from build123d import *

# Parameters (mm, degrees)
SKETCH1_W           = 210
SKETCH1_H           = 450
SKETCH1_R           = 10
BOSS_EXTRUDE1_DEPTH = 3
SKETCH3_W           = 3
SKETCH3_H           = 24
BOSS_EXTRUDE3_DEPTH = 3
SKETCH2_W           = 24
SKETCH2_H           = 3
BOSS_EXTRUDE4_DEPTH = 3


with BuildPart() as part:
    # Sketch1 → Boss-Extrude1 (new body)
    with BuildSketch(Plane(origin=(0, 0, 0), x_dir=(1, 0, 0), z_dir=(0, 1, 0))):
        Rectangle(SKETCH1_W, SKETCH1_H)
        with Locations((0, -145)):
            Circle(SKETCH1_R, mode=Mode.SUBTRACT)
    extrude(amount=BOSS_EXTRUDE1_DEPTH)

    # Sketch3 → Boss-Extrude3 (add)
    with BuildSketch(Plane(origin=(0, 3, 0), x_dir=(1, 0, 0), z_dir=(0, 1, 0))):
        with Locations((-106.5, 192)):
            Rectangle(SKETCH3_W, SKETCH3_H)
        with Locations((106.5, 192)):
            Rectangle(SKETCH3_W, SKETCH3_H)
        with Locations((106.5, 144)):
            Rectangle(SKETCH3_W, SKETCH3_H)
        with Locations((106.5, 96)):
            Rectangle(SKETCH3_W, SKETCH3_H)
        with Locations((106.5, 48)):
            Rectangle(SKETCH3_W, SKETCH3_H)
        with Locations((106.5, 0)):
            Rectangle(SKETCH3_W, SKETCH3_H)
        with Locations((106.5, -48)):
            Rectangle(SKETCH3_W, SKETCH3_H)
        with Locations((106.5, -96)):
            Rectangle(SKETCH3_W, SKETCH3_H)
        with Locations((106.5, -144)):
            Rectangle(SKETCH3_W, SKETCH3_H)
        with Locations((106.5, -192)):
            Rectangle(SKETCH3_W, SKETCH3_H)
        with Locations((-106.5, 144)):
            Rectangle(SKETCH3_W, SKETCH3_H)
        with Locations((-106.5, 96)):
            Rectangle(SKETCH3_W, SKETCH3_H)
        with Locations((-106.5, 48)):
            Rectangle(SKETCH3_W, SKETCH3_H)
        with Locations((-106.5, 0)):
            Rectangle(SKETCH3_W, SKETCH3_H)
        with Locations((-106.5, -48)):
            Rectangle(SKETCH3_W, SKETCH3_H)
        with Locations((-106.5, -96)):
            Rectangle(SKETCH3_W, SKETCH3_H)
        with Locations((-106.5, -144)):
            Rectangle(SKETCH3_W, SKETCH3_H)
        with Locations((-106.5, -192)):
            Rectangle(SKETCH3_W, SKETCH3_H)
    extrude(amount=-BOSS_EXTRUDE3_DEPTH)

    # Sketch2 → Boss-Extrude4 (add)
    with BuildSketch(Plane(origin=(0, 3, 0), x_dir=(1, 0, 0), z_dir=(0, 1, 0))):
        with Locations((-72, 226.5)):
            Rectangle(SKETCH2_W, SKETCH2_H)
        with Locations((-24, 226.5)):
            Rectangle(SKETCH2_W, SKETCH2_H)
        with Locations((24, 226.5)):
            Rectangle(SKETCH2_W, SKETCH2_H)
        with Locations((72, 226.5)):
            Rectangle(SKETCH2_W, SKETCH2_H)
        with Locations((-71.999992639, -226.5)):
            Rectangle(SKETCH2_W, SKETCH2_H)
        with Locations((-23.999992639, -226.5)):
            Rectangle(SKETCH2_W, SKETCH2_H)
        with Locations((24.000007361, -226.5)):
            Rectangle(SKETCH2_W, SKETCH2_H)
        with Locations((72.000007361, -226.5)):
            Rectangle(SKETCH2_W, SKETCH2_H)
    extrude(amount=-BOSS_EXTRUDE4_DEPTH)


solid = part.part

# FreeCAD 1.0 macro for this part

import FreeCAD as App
import Part
import Sketcher
Q = App.Units.Quantity

doc = App.newDocument("Part")
params = doc.addObject("Spreadsheet::Sheet", "Params")
for row, (alias, value) in enumerate([
    ("sketch1_diameter", "20 mm"),
    ("sketch1_width", "210 mm"),
    ("sketch1_height", "450 mm"),
    ("pad1_length", "3 mm"),
    ("sketch2_width", "3 mm"),
    ("sketch2_height", "24 mm"),
    ("pad2_length", "3 mm"),
    ("sketch3_width", "24 mm"),
    ("sketch3_height", "3 mm"),
    ("pad3_length", "3 mm"),
], start=1):
    params.set(f"A{row}", alias)
    params.set(f"B{row}", "=" + value)
    params.setAlias(f"B{row}", alias)

body = doc.addObject("PartDesign::Body", "Body")

# Sketch on XZ plane
sketch1 = doc.addObject("Sketcher::SketchObject", "Sketch")
body.addObject(sketch1)
sketch1.AttachmentSupport = (doc.XZ_Plane, [""])
sketch1.MapMode = "FlatFace"
sketch1.addGeometry([
    Part.LineSegment(App.Vector(-105, -225, 0), App.Vector(-105, 225, 0)),  # 0
    Part.LineSegment(App.Vector(-105, 225, 0), App.Vector(105, 225, 0)),  # 1
    Part.LineSegment(App.Vector(105, 225, 0), App.Vector(105, -225, 0)),  # 2
    Part.LineSegment(App.Vector(105, -225, 0), App.Vector(-105, -225, 0)),  # 3
    Part.Circle(App.Vector(0, 145, 0), App.Vector(0, 0, 1), 10),  # 4
], False)
sketch1.addConstraint([
    Sketcher.Constraint("Coincident", 0, 2, 1, 1),
    Sketcher.Constraint("Coincident", 1, 2, 2, 1),
    Sketcher.Constraint("Coincident", 2, 2, 3, 1),
    Sketcher.Constraint("Coincident", 3, 2, 0, 1),
    Sketcher.Constraint("Vertical", 0),
    Sketcher.Constraint("Horizontal", 1),
    Sketcher.Constraint("Vertical", 2),
    Sketcher.Constraint("Horizontal", 3),
    Sketcher.Constraint("Symmetric", 0, 2, 2, 2, -1, 1),
    Sketcher.Constraint("PointOnObject", 4, 3, -2),
    Sketcher.Constraint("Diameter", 4, Q("20 mm")),
    Sketcher.Constraint("DistanceX", 1, 1, 1, 2, Q("210 mm")),
    Sketcher.Constraint("DistanceY", 0, 1, 0, 2, Q("450 mm")),
    Sketcher.Constraint("DistanceY", -1, 1, 4, 3, Q("145 mm")),
])
sketch1.setExpression("Constraints[10]", "Params.sketch1_diameter")
sketch1.setExpression("Constraints[11]", "Params.sketch1_width")
sketch1.setExpression("Constraints[12]", "Params.sketch1_height")
pad1 = doc.addObject("PartDesign::Pad", "Pad")
body.addObject(pad1)
pad1.Profile = sketch1
pad1.setExpression("Length", "Params.pad1_length")
pad1.Reversed = True

# Sketch on XZ plane
sketch2 = doc.addObject("Sketcher::SketchObject", "Sketch001")
body.addObject(sketch2)
sketch2.AttachmentSupport = (doc.XZ_Plane, [""])
sketch2.MapMode = "FlatFace"
sketch2.AttachmentOffset = App.Placement(App.Vector(0, 0, -3), App.Rotation())
sketch2.addGeometry([
    Part.LineSegment(App.Vector(-108, -204, 0), App.Vector(-108, -180, 0)),  # 0
    Part.LineSegment(App.Vector(-108, -180, 0), App.Vector(-105, -180, 0)),  # 1
    Part.LineSegment(App.Vector(-105, -180, 0), App.Vector(-105, -204, 0)),  # 2
    Part.LineSegment(App.Vector(-105, -204, 0), App.Vector(-108, -204, 0)),  # 3
    Part.LineSegment(App.Vector(105, -204, 0), App.Vector(105, -180, 0)),  # 4
    Part.LineSegment(App.Vector(105, -180, 0), App.Vector(108, -180, 0)),  # 5
    Part.LineSegment(App.Vector(108, -180, 0), App.Vector(108, -204, 0)),  # 6
    Part.LineSegment(App.Vector(108, -204, 0), App.Vector(105, -204, 0)),  # 7
    Part.LineSegment(App.Vector(105, -156, 0), App.Vector(105, -132, 0)),  # 8
    Part.LineSegment(App.Vector(105, -132, 0), App.Vector(108, -132, 0)),  # 9
    Part.LineSegment(App.Vector(108, -132, 0), App.Vector(108, -156, 0)),  # 10
    Part.LineSegment(App.Vector(108, -156, 0), App.Vector(105, -156, 0)),  # 11
    Part.LineSegment(App.Vector(105, -108, 0), App.Vector(105, -84, 0)),  # 12
    Part.LineSegment(App.Vector(105, -84, 0), App.Vector(108, -84, 0)),  # 13
    Part.LineSegment(App.Vector(108, -84, 0), App.Vector(108, -108, 0)),  # 14
    Part.LineSegment(App.Vector(108, -108, 0), App.Vector(105, -108, 0)),  # 15
    Part.LineSegment(App.Vector(105, -60, 0), App.Vector(105, -36, 0)),  # 16
    Part.LineSegment(App.Vector(105, -36, 0), App.Vector(108, -36, 0)),  # 17
    Part.LineSegment(App.Vector(108, -36, 0), App.Vector(108, -60, 0)),  # 18
    Part.LineSegment(App.Vector(108, -60, 0), App.Vector(105, -60, 0)),  # 19
    Part.LineSegment(App.Vector(105, -12, 0), App.Vector(105, 12, 0)),  # 20
    Part.LineSegment(App.Vector(105, 12, 0), App.Vector(108, 12, 0)),  # 21
    Part.LineSegment(App.Vector(108, 12, 0), App.Vector(108, -12, 0)),  # 22
    Part.LineSegment(App.Vector(108, -12, 0), App.Vector(105, -12, 0)),  # 23
    Part.LineSegment(App.Vector(105, 36, 0), App.Vector(105, 60, 0)),  # 24
    Part.LineSegment(App.Vector(105, 60, 0), App.Vector(108, 60, 0)),  # 25
    Part.LineSegment(App.Vector(108, 60, 0), App.Vector(108, 36, 0)),  # 26
    Part.LineSegment(App.Vector(108, 36, 0), App.Vector(105, 36, 0)),  # 27
    Part.LineSegment(App.Vector(105, 84, 0), App.Vector(105, 108, 0)),  # 28
    Part.LineSegment(App.Vector(105, 108, 0), App.Vector(108, 108, 0)),  # 29
    Part.LineSegment(App.Vector(108, 108, 0), App.Vector(108, 84, 0)),  # 30
    Part.LineSegment(App.Vector(108, 84, 0), App.Vector(105, 84, 0)),  # 31
    Part.LineSegment(App.Vector(105, 132, 0), App.Vector(105, 156, 0)),  # 32
    Part.LineSegment(App.Vector(105, 156, 0), App.Vector(108, 156, 0)),  # 33
    Part.LineSegment(App.Vector(108, 156, 0), App.Vector(108, 132, 0)),  # 34
    Part.LineSegment(App.Vector(108, 132, 0), App.Vector(105, 132, 0)),  # 35
    Part.LineSegment(App.Vector(105, 180, 0), App.Vector(105, 204, 0)),  # 36
    Part.LineSegment(App.Vector(105, 204, 0), App.Vector(108, 204, 0)),  # 37
    Part.LineSegment(App.Vector(108, 204, 0), App.Vector(108, 180, 0)),  # 38
    Part.LineSegment(App.Vector(108, 180, 0), App.Vector(105, 180, 0)),  # 39
    Part.LineSegment(App.Vector(-108, -156, 0), App.Vector(-108, -132, 0)),  # 40
    Part.LineSegment(App.Vector(-108, -132, 0), App.Vector(-105, -132, 0)),  # 41
    Part.LineSegment(App.Vector(-105, -132, 0), App.Vector(-105, -156, 0)),  # 42
    Part.LineSegment(App.Vector(-105, -156, 0), App.Vector(-108, -156, 0)),  # 43
    Part.LineSegment(App.Vector(-108, -108, 0), App.Vector(-108, -84, 0)),  # 44
    Part.LineSegment(App.Vector(-108, -84, 0), App.Vector(-105, -84, 0)),  # 45
    Part.LineSegment(App.Vector(-105, -84, 0), App.Vector(-105, -108, 0)),  # 46
    Part.LineSegment(App.Vector(-105, -108, 0), App.Vector(-108, -108, 0)),  # 47
    Part.LineSegment(App.Vector(-108, -60, 0), App.Vector(-108, -36, 0)),  # 48
    Part.LineSegment(App.Vector(-108, -36, 0), App.Vector(-105, -36, 0)),  # 49
    Part.LineSegment(App.Vector(-105, -36, 0), App.Vector(-105, -60, 0)),  # 50
    Part.LineSegment(App.Vector(-105, -60, 0), App.Vector(-108, -60, 0)),  # 51
    Part.LineSegment(App.Vector(-108, -12, 0), App.Vector(-108, 12, 0)),  # 52
    Part.LineSegment(App.Vector(-108, 12, 0), App.Vector(-105, 12, 0)),  # 53
    Part.LineSegment(App.Vector(-105, 12, 0), App.Vector(-105, -12, 0)),  # 54
    Part.LineSegment(App.Vector(-105, -12, 0), App.Vector(-108, -12, 0)),  # 55
    Part.LineSegment(App.Vector(-108, 36, 0), App.Vector(-108, 60, 0)),  # 56
    Part.LineSegment(App.Vector(-108, 60, 0), App.Vector(-105, 60, 0)),  # 57
    Part.LineSegment(App.Vector(-105, 60, 0), App.Vector(-105, 36, 0)),  # 58
    Part.LineSegment(App.Vector(-105, 36, 0), App.Vector(-108, 36, 0)),  # 59
    Part.LineSegment(App.Vector(-108, 84, 0), App.Vector(-108, 108, 0)),  # 60
    Part.LineSegment(App.Vector(-108, 108, 0), App.Vector(-105, 108, 0)),  # 61
    Part.LineSegment(App.Vector(-105, 108, 0), App.Vector(-105, 84, 0)),  # 62
    Part.LineSegment(App.Vector(-105, 84, 0), App.Vector(-108, 84, 0)),  # 63
    Part.LineSegment(App.Vector(-108, 132, 0), App.Vector(-108, 156, 0)),  # 64
    Part.LineSegment(App.Vector(-108, 156, 0), App.Vector(-105, 156, 0)),  # 65
    Part.LineSegment(App.Vector(-105, 156, 0), App.Vector(-105, 132, 0)),  # 66
    Part.LineSegment(App.Vector(-105, 132, 0), App.Vector(-108, 132, 0)),  # 67
    Part.LineSegment(App.Vector(-108, 180, 0), App.Vector(-108, 204, 0)),  # 68
    Part.LineSegment(App.Vector(-108, 204, 0), App.Vector(-105, 204, 0)),  # 69
    Part.LineSegment(App.Vector(-105, 204, 0), App.Vector(-105, 180, 0)),  # 70
    Part.LineSegment(App.Vector(-105, 180, 0), App.Vector(-108, 180, 0)),  # 71
], False)
sketch2.addConstraint([
    Sketcher.Constraint("Coincident", 0, 2, 1, 1),
    Sketcher.Constraint("Coincident", 1, 2, 2, 1),
    Sketcher.Constraint("Coincident", 2, 2, 3, 1),
    Sketcher.Constraint("Coincident", 3, 2, 0, 1),
    Sketcher.Constraint("Coincident", 4, 2, 5, 1),
    Sketcher.Constraint("Coincident", 5, 2, 6, 1),
    Sketcher.Constraint("Coincident", 6, 2, 7, 1),
    Sketcher.Constraint("Coincident", 7, 2, 4, 1),
    Sketcher.Constraint("Coincident", 8, 2, 9, 1),
    Sketcher.Constraint("Coincident", 9, 2, 10, 1),
    Sketcher.Constraint("Coincident", 10, 2, 11, 1),
    Sketcher.Constraint("Coincident", 11, 2, 8, 1),
    Sketcher.Constraint("Coincident", 12, 2, 13, 1),
    Sketcher.Constraint("Coincident", 13, 2, 14, 1),
    Sketcher.Constraint("Coincident", 14, 2, 15, 1),
    Sketcher.Constraint("Coincident", 15, 2, 12, 1),
    Sketcher.Constraint("Coincident", 16, 2, 17, 1),
    Sketcher.Constraint("Coincident", 17, 2, 18, 1),
    Sketcher.Constraint("Coincident", 18, 2, 19, 1),
    Sketcher.Constraint("Coincident", 19, 2, 16, 1),
    Sketcher.Constraint("Coincident", 20, 2, 21, 1),
    Sketcher.Constraint("Coincident", 21, 2, 22, 1),
    Sketcher.Constraint("Coincident", 22, 2, 23, 1),
    Sketcher.Constraint("Coincident", 23, 2, 20, 1),
    Sketcher.Constraint("Coincident", 24, 2, 25, 1),
    Sketcher.Constraint("Coincident", 25, 2, 26, 1),
    Sketcher.Constraint("Coincident", 26, 2, 27, 1),
    Sketcher.Constraint("Coincident", 27, 2, 24, 1),
    Sketcher.Constraint("Coincident", 28, 2, 29, 1),
    Sketcher.Constraint("Coincident", 29, 2, 30, 1),
    Sketcher.Constraint("Coincident", 30, 2, 31, 1),
    Sketcher.Constraint("Coincident", 31, 2, 28, 1),
    Sketcher.Constraint("Coincident", 32, 2, 33, 1),
    Sketcher.Constraint("Coincident", 33, 2, 34, 1),
    Sketcher.Constraint("Coincident", 34, 2, 35, 1),
    Sketcher.Constraint("Coincident", 35, 2, 32, 1),
    Sketcher.Constraint("Coincident", 36, 2, 37, 1),
    Sketcher.Constraint("Coincident", 37, 2, 38, 1),
    Sketcher.Constraint("Coincident", 38, 2, 39, 1),
    Sketcher.Constraint("Coincident", 39, 2, 36, 1),
    Sketcher.Constraint("Coincident", 40, 2, 41, 1),
    Sketcher.Constraint("Coincident", 41, 2, 42, 1),
    Sketcher.Constraint("Coincident", 42, 2, 43, 1),
    Sketcher.Constraint("Coincident", 43, 2, 40, 1),
    Sketcher.Constraint("Coincident", 44, 2, 45, 1),
    Sketcher.Constraint("Coincident", 45, 2, 46, 1),
    Sketcher.Constraint("Coincident", 46, 2, 47, 1),
    Sketcher.Constraint("Coincident", 47, 2, 44, 1),
    Sketcher.Constraint("Coincident", 48, 2, 49, 1),
    Sketcher.Constraint("Coincident", 49, 2, 50, 1),
    Sketcher.Constraint("Coincident", 50, 2, 51, 1),
    Sketcher.Constraint("Coincident", 51, 2, 48, 1),
    Sketcher.Constraint("Coincident", 52, 2, 53, 1),
    Sketcher.Constraint("Coincident", 53, 2, 54, 1),
    Sketcher.Constraint("Coincident", 54, 2, 55, 1),
    Sketcher.Constraint("Coincident", 55, 2, 52, 1),
    Sketcher.Constraint("Coincident", 56, 2, 57, 1),
    Sketcher.Constraint("Coincident", 57, 2, 58, 1),
    Sketcher.Constraint("Coincident", 58, 2, 59, 1),
    Sketcher.Constraint("Coincident", 59, 2, 56, 1),
    Sketcher.Constraint("Coincident", 60, 2, 61, 1),
    Sketcher.Constraint("Coincident", 61, 2, 62, 1),
    Sketcher.Constraint("Coincident", 62, 2, 63, 1),
    Sketcher.Constraint("Coincident", 63, 2, 60, 1),
    Sketcher.Constraint("Coincident", 64, 2, 65, 1),
    Sketcher.Constraint("Coincident", 65, 2, 66, 1),
    Sketcher.Constraint("Coincident", 66, 2, 67, 1),
    Sketcher.Constraint("Coincident", 67, 2, 64, 1),
    Sketcher.Constraint("Coincident", 68, 2, 69, 1),
    Sketcher.Constraint("Coincident", 69, 2, 70, 1),
    Sketcher.Constraint("Coincident", 70, 2, 71, 1),
    Sketcher.Constraint("Coincident", 71, 2, 68, 1),
    Sketcher.Constraint("Vertical", 0),
    Sketcher.Constraint("Horizontal", 1),
    Sketcher.Constraint("Vertical", 2),
    Sketcher.Constraint("Horizontal", 3),
    Sketcher.Constraint("Vertical", 4),
    Sketcher.Constraint("Horizontal", 5),
    Sketcher.Constraint("Vertical", 6),
    Sketcher.Constraint("Horizontal", 7),
    Sketcher.Constraint("Vertical", 8),
    Sketcher.Constraint("Horizontal", 9),
    Sketcher.Constraint("Vertical", 10),
    Sketcher.Constraint("Horizontal", 11),
    Sketcher.Constraint("Vertical", 12),
    Sketcher.Constraint("Horizontal", 13),
    Sketcher.Constraint("Vertical", 14),
    Sketcher.Constraint("Horizontal", 15),
    Sketcher.Constraint("Vertical", 16),
    Sketcher.Constraint("Horizontal", 17),
    Sketcher.Constraint("Vertical", 18),
    Sketcher.Constraint("Horizontal", 19),
    Sketcher.Constraint("Vertical", 20),
    Sketcher.Constraint("Horizontal", 21),
    Sketcher.Constraint("Vertical", 22),
    Sketcher.Constraint("Horizontal", 23),
    Sketcher.Constraint("Vertical", 24),
    Sketcher.Constraint("Horizontal", 25),
    Sketcher.Constraint("Vertical", 26),
    Sketcher.Constraint("Horizontal", 27),
    Sketcher.Constraint("Vertical", 28),
    Sketcher.Constraint("Horizontal", 29),
    Sketcher.Constraint("Vertical", 30),
    Sketcher.Constraint("Horizontal", 31),
    Sketcher.Constraint("Vertical", 32),
    Sketcher.Constraint("Horizontal", 33),
    Sketcher.Constraint("Vertical", 34),
    Sketcher.Constraint("Horizontal", 35),
    Sketcher.Constraint("Vertical", 36),
    Sketcher.Constraint("Horizontal", 37),
    Sketcher.Constraint("Vertical", 38),
    Sketcher.Constraint("Horizontal", 39),
    Sketcher.Constraint("Vertical", 40),
    Sketcher.Constraint("Horizontal", 41),
    Sketcher.Constraint("Vertical", 42),
    Sketcher.Constraint("Horizontal", 43),
    Sketcher.Constraint("Vertical", 44),
    Sketcher.Constraint("Horizontal", 45),
    Sketcher.Constraint("Vertical", 46),
    Sketcher.Constraint("Horizontal", 47),
    Sketcher.Constraint("Vertical", 48),
    Sketcher.Constraint("Horizontal", 49),
    Sketcher.Constraint("Vertical", 50),
    Sketcher.Constraint("Horizontal", 51),
    Sketcher.Constraint("Vertical", 52),
    Sketcher.Constraint("Horizontal", 53),
    Sketcher.Constraint("Vertical", 54),
    Sketcher.Constraint("Horizontal", 55),
    Sketcher.Constraint("Vertical", 56),
    Sketcher.Constraint("Horizontal", 57),
    Sketcher.Constraint("Vertical", 58),
    Sketcher.Constraint("Horizontal", 59),
    Sketcher.Constraint("Vertical", 60),
    Sketcher.Constraint("Horizontal", 61),
    Sketcher.Constraint("Vertical", 62),
    Sketcher.Constraint("Horizontal", 63),
    Sketcher.Constraint("Vertical", 64),
    Sketcher.Constraint("Horizontal", 65),
    Sketcher.Constraint("Vertical", 66),
    Sketcher.Constraint("Horizontal", 67),
    Sketcher.Constraint("Vertical", 68),
    Sketcher.Constraint("Horizontal", 69),
    Sketcher.Constraint("Vertical", 70),
    Sketcher.Constraint("Horizontal", 71),
    Sketcher.Constraint("Symmetric", 2, 2, 36, 2, -1, 1),
    Sketcher.Constraint("Symmetric", 0, 2, 38, 2, -1, 1),
    Sketcher.Constraint("Symmetric", 34, 2, 40, 2, -1, 1),
    Sketcher.Constraint("Symmetric", 32, 2, 42, 2, -1, 1),
    Sketcher.Constraint("Symmetric", 30, 2, 44, 2, -1, 1),
    Sketcher.Constraint("Symmetric", 28, 2, 46, 2, -1, 1),
    Sketcher.Constraint("Symmetric", 26, 2, 48, 2, -1, 1),
    Sketcher.Constraint("Symmetric", 24, 2, 50, 2, -1, 1),
    Sketcher.Constraint("Symmetric", 22, 2, 52, 2, -1, 1),
    Sketcher.Constraint("Symmetric", 20, 2, 54, 2, -1, 1),
    Sketcher.Constraint("Symmetric", 18, 2, 56, 2, -1, 1),
    Sketcher.Constraint("Symmetric", 16, 2, 58, 2, -1, 1),
    Sketcher.Constraint("Symmetric", 14, 2, 60, 2, -1, 1),
    Sketcher.Constraint("Symmetric", 12, 2, 62, 2, -1, 1),
    Sketcher.Constraint("Symmetric", 10, 2, 64, 2, -1, 1),
    Sketcher.Constraint("Symmetric", 8, 2, 66, 2, -1, 1),
    Sketcher.Constraint("Symmetric", 6, 2, 68, 2, -1, 1),
    Sketcher.Constraint("Symmetric", 4, 2, 70, 2, -1, 1),
    Sketcher.Constraint("Symmetric", 1, 2, 4, 2, -2),
    Sketcher.Constraint("Symmetric", 3, 2, 6, 2, -2),
    Sketcher.Constraint("Symmetric", 9, 2, 40, 2, -2),
    Sketcher.Constraint("Symmetric", 11, 2, 42, 2, -2),
    Sketcher.Constraint("Symmetric", 13, 2, 44, 2, -2),
    Sketcher.Constraint("Symmetric", 15, 2, 46, 2, -2),
    Sketcher.Constraint("Symmetric", 17, 2, 48, 2, -2),
    Sketcher.Constraint("Symmetric", 19, 2, 50, 2, -2),
    Sketcher.Constraint("Horizontal", 21, 2, 52, 2),
    Sketcher.Constraint("Vertical", 7, 2, 8, 2),
    Sketcher.Constraint("Vertical", 6, 2, 9, 2),
    Sketcher.Constraint("Vertical", 11, 2, 12, 2),
    Sketcher.Constraint("Vertical", 10, 2, 13, 2),
    Sketcher.Constraint("Vertical", 15, 2, 16, 2),
    Sketcher.Constraint("Vertical", 14, 2, 17, 2),
    Sketcher.Constraint("Vertical", 19, 2, 20, 2),
    Sketcher.Constraint("Vertical", 18, 2, 21, 2),
    Sketcher.Constraint("Equal", 6, 8),
    Sketcher.Constraint("Equal", 10, 12),
    Sketcher.Constraint("Equal", 14, 16),
    Sketcher.Constraint("Equal", 18, 20),
    Sketcher.Constraint("DistanceX", 1, 1, 1, 2, Q("3 mm")),
    Sketcher.Constraint("DistanceY", 0, 1, 0, 2, Q("24 mm")),
    Sketcher.Constraint("DistanceX", 0, 2, -1, 1, Q("108 mm")),
    Sketcher.Constraint("DistanceY", 0, 2, -1, 1, Q("180 mm")),
    Sketcher.Constraint("DistanceY", 8, 2, -1, 1, Q("132 mm")),
    Sketcher.Constraint("DistanceY", 12, 2, -1, 1, Q("84 mm")),
    Sketcher.Constraint("DistanceY", 16, 2, -1, 1, Q("36 mm")),
])
sketch2.setExpression("Constraints[183]", "Params.sketch2_width")
sketch2.setExpression("Constraints[184]", "Params.sketch2_height")
pad2 = doc.addObject("PartDesign::Pad", "Pad001")
body.addObject(pad2)
pad2.Profile = sketch2
pad2.setExpression("Length", "Params.pad2_length")

# Sketch on XZ plane
sketch3 = doc.addObject("Sketcher::SketchObject", "Sketch002")
body.addObject(sketch3)
sketch3.AttachmentSupport = (doc.XZ_Plane, [""])
sketch3.MapMode = "FlatFace"
sketch3.AttachmentOffset = App.Placement(App.Vector(0, 0, -3), App.Rotation())
sketch3.addGeometry([
    Part.LineSegment(App.Vector(-84, -228, 0), App.Vector(-84, -225, 0)),  # 0
    Part.LineSegment(App.Vector(-84, -225, 0), App.Vector(-60, -225, 0)),  # 1
    Part.LineSegment(App.Vector(-60, -225, 0), App.Vector(-60, -228, 0)),  # 2
    Part.LineSegment(App.Vector(-60, -228, 0), App.Vector(-84, -228, 0)),  # 3
    Part.LineSegment(App.Vector(-36, -228, 0), App.Vector(-36, -225, 0)),  # 4
    Part.LineSegment(App.Vector(-36, -225, 0), App.Vector(-12, -225, 0)),  # 5
    Part.LineSegment(App.Vector(-12, -225, 0), App.Vector(-12, -228, 0)),  # 6
    Part.LineSegment(App.Vector(-12, -228, 0), App.Vector(-36, -228, 0)),  # 7
    Part.LineSegment(App.Vector(12, -228, 0), App.Vector(12, -225, 0)),  # 8
    Part.LineSegment(App.Vector(12, -225, 0), App.Vector(36, -225, 0)),  # 9
    Part.LineSegment(App.Vector(36, -225, 0), App.Vector(36, -228, 0)),  # 10
    Part.LineSegment(App.Vector(36, -228, 0), App.Vector(12, -228, 0)),  # 11
    Part.LineSegment(App.Vector(60, -228, 0), App.Vector(60, -225, 0)),  # 12
    Part.LineSegment(App.Vector(60, -225, 0), App.Vector(84, -225, 0)),  # 13
    Part.LineSegment(App.Vector(84, -225, 0), App.Vector(84, -228, 0)),  # 14
    Part.LineSegment(App.Vector(84, -228, 0), App.Vector(60, -228, 0)),  # 15
    Part.LineSegment(App.Vector(-83.999993, 225, 0), App.Vector(-83.999993, 228, 0)),  # 16
    Part.LineSegment(App.Vector(-83.999993, 228, 0), App.Vector(-59.999993, 228, 0)),  # 17
    Part.LineSegment(App.Vector(-59.999993, 228, 0), App.Vector(-59.999993, 225, 0)),  # 18
    Part.LineSegment(App.Vector(-59.999993, 225, 0), App.Vector(-83.999993, 225, 0)),  # 19
    Part.LineSegment(App.Vector(-35.999993, 225, 0), App.Vector(-35.999993, 228, 0)),  # 20
    Part.LineSegment(App.Vector(-35.999993, 228, 0), App.Vector(-11.999993, 228, 0)),  # 21
    Part.LineSegment(App.Vector(-11.999993, 228, 0), App.Vector(-11.999993, 225, 0)),  # 22
    Part.LineSegment(App.Vector(-11.999993, 225, 0), App.Vector(-35.999993, 225, 0)),  # 23
    Part.LineSegment(App.Vector(12.000007, 225, 0), App.Vector(12.000007, 228, 0)),  # 24
    Part.LineSegment(App.Vector(12.000007, 228, 0), App.Vector(36.000007, 228, 0)),  # 25
    Part.LineSegment(App.Vector(36.000007, 228, 0), App.Vector(36.000007, 225, 0)),  # 26
    Part.LineSegment(App.Vector(36.000007, 225, 0), App.Vector(12.000007, 225, 0)),  # 27
    Part.LineSegment(App.Vector(60.000007, 225, 0), App.Vector(60.000007, 228, 0)),  # 28
    Part.LineSegment(App.Vector(60.000007, 228, 0), App.Vector(84.000007, 228, 0)),  # 29
    Part.LineSegment(App.Vector(84.000007, 228, 0), App.Vector(84.000007, 225, 0)),  # 30
    Part.LineSegment(App.Vector(84.000007, 225, 0), App.Vector(60.000007, 225, 0)),  # 31
], False)
sketch3.addConstraint([
    Sketcher.Constraint("Coincident", 0, 2, 1, 1),
    Sketcher.Constraint("Coincident", 1, 2, 2, 1),
    Sketcher.Constraint("Coincident", 2, 2, 3, 1),
    Sketcher.Constraint("Coincident", 3, 2, 0, 1),
    Sketcher.Constraint("Coincident", 4, 2, 5, 1),
    Sketcher.Constraint("Coincident", 5, 2, 6, 1),
    Sketcher.Constraint("Coincident", 6, 2, 7, 1),
    Sketcher.Constraint("Coincident", 7, 2, 4, 1),
    Sketcher.Constraint("Coincident", 8, 2, 9, 1),
    Sketcher.Constraint("Coincident", 9, 2, 10, 1),
    Sketcher.Constraint("Coincident", 10, 2, 11, 1),
    Sketcher.Constraint("Coincident", 11, 2, 8, 1),
    Sketcher.Constraint("Coincident", 12, 2, 13, 1),
    Sketcher.Constraint("Coincident", 13, 2, 14, 1),
    Sketcher.Constraint("Coincident", 14, 2, 15, 1),
    Sketcher.Constraint("Coincident", 15, 2, 12, 1),
    Sketcher.Constraint("Coincident", 16, 2, 17, 1),
    Sketcher.Constraint("Coincident", 17, 2, 18, 1),
    Sketcher.Constraint("Coincident", 18, 2, 19, 1),
    Sketcher.Constraint("Coincident", 19, 2, 16, 1),
    Sketcher.Constraint("Coincident", 20, 2, 21, 1),
    Sketcher.Constraint("Coincident", 21, 2, 22, 1),
    Sketcher.Constraint("Coincident", 22, 2, 23, 1),
    Sketcher.Constraint("Coincident", 23, 2, 20, 1),
    Sketcher.Constraint("Coincident", 24, 2, 25, 1),
    Sketcher.Constraint("Coincident", 25, 2, 26, 1),
    Sketcher.Constraint("Coincident", 26, 2, 27, 1),
    Sketcher.Constraint("Coincident", 27, 2, 24, 1),
    Sketcher.Constraint("Coincident", 28, 2, 29, 1),
    Sketcher.Constraint("Coincident", 29, 2, 30, 1),
    Sketcher.Constraint("Coincident", 30, 2, 31, 1),
    Sketcher.Constraint("Coincident", 31, 2, 28, 1),
    Sketcher.Constraint("Vertical", 0),
    Sketcher.Constraint("Horizontal", 1),
    Sketcher.Constraint("Vertical", 2),
    Sketcher.Constraint("Horizontal", 3),
    Sketcher.Constraint("Vertical", 4),
    Sketcher.Constraint("Horizontal", 5),
    Sketcher.Constraint("Vertical", 6),
    Sketcher.Constraint("Horizontal", 7),
    Sketcher.Constraint("Vertical", 8),
    Sketcher.Constraint("Horizontal", 9),
    Sketcher.Constraint("Vertical", 10),
    Sketcher.Constraint("Horizontal", 11),
    Sketcher.Constraint("Vertical", 12),
    Sketcher.Constraint("Horizontal", 13),
    Sketcher.Constraint("Vertical", 14),
    Sketcher.Constraint("Horizontal", 15),
    Sketcher.Constraint("Vertical", 16),
    Sketcher.Constraint("Horizontal", 17),
    Sketcher.Constraint("Vertical", 18),
    Sketcher.Constraint("Horizontal", 19),
    Sketcher.Constraint("Vertical", 20),
    Sketcher.Constraint("Horizontal", 21),
    Sketcher.Constraint("Vertical", 22),
    Sketcher.Constraint("Horizontal", 23),
    Sketcher.Constraint("Vertical", 24),
    Sketcher.Constraint("Horizontal", 25),
    Sketcher.Constraint("Vertical", 26),
    Sketcher.Constraint("Horizontal", 27),
    Sketcher.Constraint("Vertical", 28),
    Sketcher.Constraint("Horizontal", 29),
    Sketcher.Constraint("Vertical", 30),
    Sketcher.Constraint("Horizontal", 31),
    Sketcher.Constraint("Symmetric", 14, 2, 16, 2, -1, 1),
    Sketcher.Constraint("Symmetric", 12, 2, 18, 2, -1, 1),
    Sketcher.Constraint("Symmetric", 10, 2, 20, 2, -1, 1),
    Sketcher.Constraint("Symmetric", 8, 2, 22, 2, -1, 1),
    Sketcher.Constraint("Symmetric", 6, 2, 24, 2, -1, 1),
    Sketcher.Constraint("Symmetric", 4, 2, 26, 2, -1, 1),
    Sketcher.Constraint("Symmetric", 2, 2, 28, 2, -1, 1),
    Sketcher.Constraint("Symmetric", 0, 2, 30, 2, -1, 1),
    Sketcher.Constraint("Symmetric", 5, 2, 8, 2, -2),
    Sketcher.Constraint("Symmetric", 7, 2, 10, 2, -2),
    Sketcher.Constraint("Symmetric", 1, 2, 12, 2, -2),
    Sketcher.Constraint("Symmetric", 3, 2, 14, 2, -2),
    Sketcher.Constraint("Horizontal", 1, 2, 4, 2),
    Sketcher.Constraint("Horizontal", 3, 2, 6, 2),
    Sketcher.Constraint("Equal", 3, 5),
    Sketcher.Constraint("DistanceX", 1, 1, 1, 2, Q("24 mm")),
    Sketcher.Constraint("DistanceY", 0, 1, 0, 2, Q("3 mm")),
    Sketcher.Constraint("DistanceX", 0, 2, -1, 1, Q("84 mm")),
    Sketcher.Constraint("DistanceY", 0, 2, -1, 1, Q("225 mm")),
    Sketcher.Constraint("DistanceX", 4, 2, -1, 1, Q("36 mm")),
])
sketch3.setExpression("Constraints[79]", "Params.sketch3_width")
sketch3.setExpression("Constraints[80]", "Params.sketch3_height")
pad3 = doc.addObject("PartDesign::Pad", "Pad002")
body.addObject(pad3)
pad3.Profile = sketch3
pad3.setExpression("Length", "Params.pad3_length")

doc.recompute()
